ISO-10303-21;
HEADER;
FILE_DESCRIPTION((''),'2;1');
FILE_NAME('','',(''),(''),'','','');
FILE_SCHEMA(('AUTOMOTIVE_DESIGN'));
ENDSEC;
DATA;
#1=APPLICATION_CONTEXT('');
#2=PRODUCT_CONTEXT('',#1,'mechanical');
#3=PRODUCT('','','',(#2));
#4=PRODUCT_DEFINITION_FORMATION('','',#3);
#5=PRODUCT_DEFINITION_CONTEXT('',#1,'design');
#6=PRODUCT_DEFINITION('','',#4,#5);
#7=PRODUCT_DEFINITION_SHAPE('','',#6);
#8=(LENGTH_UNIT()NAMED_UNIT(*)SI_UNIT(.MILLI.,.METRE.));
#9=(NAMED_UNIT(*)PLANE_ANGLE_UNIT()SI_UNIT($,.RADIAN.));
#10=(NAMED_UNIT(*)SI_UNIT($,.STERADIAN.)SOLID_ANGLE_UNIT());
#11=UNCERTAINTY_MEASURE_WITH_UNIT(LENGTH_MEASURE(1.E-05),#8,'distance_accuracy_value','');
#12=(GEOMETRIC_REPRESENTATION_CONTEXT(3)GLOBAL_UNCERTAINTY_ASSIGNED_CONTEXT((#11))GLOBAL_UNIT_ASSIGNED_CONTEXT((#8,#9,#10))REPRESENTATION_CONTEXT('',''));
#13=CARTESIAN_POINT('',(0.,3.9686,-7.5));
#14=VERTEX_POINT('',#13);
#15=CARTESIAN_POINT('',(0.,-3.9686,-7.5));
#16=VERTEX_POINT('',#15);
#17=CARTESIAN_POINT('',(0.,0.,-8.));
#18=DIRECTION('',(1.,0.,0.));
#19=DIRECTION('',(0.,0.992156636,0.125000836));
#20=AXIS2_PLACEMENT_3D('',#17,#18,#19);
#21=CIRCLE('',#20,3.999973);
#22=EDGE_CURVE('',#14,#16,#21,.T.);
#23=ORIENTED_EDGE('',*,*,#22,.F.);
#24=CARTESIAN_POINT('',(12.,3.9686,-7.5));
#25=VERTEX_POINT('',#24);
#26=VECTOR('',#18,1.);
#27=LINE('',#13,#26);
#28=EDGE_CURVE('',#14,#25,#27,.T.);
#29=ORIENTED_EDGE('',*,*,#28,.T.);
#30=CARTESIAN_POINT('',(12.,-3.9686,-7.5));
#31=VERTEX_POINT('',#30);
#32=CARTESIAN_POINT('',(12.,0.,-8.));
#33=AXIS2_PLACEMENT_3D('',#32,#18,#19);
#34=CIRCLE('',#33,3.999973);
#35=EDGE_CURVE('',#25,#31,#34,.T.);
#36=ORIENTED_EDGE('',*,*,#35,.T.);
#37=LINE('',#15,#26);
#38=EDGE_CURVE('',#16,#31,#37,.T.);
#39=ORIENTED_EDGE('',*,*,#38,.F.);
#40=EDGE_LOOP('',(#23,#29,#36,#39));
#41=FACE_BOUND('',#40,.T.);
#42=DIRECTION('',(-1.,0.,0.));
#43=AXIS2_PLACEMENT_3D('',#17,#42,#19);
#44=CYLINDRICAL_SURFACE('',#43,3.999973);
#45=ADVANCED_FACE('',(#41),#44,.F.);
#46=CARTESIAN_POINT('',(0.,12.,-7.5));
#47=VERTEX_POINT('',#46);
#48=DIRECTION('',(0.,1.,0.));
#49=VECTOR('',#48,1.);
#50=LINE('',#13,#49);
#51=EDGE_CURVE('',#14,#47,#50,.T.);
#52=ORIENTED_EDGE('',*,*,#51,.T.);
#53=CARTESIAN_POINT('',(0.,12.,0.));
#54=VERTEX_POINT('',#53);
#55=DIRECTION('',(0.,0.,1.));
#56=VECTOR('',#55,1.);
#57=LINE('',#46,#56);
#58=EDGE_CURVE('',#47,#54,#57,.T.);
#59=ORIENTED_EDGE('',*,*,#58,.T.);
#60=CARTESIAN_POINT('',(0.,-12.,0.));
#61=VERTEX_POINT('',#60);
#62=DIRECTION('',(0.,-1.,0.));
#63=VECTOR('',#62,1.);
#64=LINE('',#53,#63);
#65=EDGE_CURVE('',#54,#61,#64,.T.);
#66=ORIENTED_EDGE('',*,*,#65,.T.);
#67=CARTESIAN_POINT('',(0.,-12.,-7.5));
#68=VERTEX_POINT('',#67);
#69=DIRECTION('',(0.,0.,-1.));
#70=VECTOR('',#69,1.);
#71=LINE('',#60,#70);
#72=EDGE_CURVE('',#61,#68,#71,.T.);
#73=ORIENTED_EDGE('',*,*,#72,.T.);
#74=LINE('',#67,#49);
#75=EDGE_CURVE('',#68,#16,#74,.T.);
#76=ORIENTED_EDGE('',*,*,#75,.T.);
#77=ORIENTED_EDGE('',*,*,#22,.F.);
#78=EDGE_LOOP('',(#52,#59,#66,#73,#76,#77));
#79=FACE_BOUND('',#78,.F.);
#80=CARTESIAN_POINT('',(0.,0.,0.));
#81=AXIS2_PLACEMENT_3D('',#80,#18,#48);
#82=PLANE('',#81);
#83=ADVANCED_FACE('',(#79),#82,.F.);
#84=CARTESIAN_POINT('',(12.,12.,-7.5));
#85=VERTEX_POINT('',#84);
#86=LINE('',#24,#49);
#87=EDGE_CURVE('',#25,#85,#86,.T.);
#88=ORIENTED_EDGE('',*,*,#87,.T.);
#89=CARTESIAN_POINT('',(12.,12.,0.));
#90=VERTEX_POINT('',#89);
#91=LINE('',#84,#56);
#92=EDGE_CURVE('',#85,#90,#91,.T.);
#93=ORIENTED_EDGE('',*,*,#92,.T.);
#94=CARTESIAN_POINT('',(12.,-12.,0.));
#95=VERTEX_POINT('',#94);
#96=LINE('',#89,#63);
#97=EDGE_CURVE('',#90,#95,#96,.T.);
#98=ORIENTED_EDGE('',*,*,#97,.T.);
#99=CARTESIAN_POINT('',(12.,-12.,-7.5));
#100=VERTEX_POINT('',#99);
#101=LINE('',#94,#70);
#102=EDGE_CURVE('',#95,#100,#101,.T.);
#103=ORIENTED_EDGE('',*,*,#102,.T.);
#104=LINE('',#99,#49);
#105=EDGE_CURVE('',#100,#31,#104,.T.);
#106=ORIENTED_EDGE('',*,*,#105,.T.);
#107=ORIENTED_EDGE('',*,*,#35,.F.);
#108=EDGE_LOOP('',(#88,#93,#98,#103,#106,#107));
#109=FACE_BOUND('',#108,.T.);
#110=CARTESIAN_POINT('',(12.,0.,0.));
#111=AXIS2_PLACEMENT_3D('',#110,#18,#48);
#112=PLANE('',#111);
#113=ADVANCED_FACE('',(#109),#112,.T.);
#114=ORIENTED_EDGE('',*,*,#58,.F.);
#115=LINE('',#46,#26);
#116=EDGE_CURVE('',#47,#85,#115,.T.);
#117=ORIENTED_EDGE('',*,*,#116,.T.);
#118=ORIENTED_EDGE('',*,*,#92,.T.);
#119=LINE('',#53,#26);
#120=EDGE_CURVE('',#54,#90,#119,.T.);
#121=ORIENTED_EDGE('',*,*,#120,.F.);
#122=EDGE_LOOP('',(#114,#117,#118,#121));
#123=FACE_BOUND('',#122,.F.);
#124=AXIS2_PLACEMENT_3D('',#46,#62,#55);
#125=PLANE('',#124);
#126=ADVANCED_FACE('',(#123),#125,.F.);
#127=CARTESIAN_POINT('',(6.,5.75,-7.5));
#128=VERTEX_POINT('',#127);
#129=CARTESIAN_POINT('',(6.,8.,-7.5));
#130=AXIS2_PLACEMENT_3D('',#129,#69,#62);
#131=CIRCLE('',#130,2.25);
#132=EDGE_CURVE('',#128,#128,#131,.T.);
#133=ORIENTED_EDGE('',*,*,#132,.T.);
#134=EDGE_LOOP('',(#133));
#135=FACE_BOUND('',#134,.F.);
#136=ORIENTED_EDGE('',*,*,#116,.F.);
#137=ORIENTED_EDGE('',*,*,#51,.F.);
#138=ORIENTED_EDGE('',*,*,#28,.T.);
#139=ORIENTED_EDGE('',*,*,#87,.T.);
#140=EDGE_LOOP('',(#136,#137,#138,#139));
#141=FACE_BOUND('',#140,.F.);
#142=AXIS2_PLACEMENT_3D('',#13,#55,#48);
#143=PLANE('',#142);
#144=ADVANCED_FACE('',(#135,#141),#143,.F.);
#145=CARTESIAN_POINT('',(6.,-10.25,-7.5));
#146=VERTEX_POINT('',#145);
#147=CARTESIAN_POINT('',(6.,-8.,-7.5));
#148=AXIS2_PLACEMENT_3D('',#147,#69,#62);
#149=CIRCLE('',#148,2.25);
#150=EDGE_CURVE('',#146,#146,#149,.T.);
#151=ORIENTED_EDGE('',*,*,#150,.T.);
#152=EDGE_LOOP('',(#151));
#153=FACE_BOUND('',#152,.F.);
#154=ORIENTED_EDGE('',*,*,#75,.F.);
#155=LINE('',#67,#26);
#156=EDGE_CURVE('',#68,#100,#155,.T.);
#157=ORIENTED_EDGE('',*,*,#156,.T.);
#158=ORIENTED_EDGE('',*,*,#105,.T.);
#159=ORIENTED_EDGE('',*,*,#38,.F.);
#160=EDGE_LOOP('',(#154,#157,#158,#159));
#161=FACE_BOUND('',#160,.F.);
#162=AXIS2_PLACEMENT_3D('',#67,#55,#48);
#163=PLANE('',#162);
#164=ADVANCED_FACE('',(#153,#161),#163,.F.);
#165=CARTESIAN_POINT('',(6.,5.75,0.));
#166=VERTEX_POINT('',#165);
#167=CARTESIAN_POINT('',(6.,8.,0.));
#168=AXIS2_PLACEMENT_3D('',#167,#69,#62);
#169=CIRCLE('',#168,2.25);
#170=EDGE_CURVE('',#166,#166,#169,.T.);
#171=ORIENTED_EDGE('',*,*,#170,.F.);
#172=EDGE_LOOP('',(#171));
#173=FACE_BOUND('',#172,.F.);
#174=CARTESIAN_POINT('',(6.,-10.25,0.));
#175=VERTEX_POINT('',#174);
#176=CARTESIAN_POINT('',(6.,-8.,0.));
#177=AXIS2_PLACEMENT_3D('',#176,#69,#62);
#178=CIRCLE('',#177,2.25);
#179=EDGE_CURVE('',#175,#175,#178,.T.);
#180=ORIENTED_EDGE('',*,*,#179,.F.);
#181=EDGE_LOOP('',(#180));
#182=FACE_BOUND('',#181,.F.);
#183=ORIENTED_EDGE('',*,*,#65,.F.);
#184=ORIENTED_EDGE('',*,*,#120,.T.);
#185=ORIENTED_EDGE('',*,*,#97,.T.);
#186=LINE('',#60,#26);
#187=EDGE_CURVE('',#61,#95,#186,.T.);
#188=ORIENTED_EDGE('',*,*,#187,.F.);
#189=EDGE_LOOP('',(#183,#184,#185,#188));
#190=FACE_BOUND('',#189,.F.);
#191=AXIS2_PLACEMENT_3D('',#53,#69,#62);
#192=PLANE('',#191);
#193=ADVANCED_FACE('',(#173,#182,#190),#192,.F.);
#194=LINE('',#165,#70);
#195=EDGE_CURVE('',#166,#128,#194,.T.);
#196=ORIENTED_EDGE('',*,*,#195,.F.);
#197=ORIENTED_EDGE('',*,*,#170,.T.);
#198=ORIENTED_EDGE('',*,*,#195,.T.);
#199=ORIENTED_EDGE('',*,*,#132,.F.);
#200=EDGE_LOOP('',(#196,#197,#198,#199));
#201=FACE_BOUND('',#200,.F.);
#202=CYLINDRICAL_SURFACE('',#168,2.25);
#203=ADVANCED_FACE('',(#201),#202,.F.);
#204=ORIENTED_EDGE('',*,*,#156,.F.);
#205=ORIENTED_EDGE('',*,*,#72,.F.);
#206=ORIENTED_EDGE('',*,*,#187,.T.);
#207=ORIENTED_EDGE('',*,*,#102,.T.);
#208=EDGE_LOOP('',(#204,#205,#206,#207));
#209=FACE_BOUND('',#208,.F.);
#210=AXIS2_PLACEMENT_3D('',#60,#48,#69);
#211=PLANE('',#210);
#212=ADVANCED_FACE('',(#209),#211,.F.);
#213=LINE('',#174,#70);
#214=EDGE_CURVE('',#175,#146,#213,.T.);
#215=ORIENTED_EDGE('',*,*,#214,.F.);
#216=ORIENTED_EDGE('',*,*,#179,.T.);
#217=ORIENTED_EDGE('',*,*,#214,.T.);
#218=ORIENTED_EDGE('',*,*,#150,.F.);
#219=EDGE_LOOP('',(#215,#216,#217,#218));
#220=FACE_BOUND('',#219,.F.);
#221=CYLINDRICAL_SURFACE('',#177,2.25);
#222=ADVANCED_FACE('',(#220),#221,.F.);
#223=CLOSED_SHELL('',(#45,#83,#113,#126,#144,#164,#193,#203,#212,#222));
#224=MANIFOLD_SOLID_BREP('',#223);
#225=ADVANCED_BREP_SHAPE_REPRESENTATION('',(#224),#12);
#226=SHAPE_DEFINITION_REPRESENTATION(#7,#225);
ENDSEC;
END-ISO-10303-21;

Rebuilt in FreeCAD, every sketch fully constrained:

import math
import FreeCAD as App
import Part
import Sketcher
from FreeCAD import Vector

doc = App.newDocument("Part")
body = doc.addObject("PartDesign::Body", "Body")

# Sketch on YZ plane
sketch1 = body.newObject("Sketcher::SketchObject", "Sketch")
sketch1.AttachmentSupport = (doc.getObject("YZ_Plane"), [""])
sketch1.MapMode = "FlatFace"
sketch1.addGeometry(Part.ArcOfCircle(Part.Circle(Vector(0, -8, 0), Vector(0, 0, 1), 3.999973), math.radians(7.180804), math.radians(172.819196)), False)
sketch1.addGeometry(Part.LineSegment(Vector(3.9686, -7.5, 0), Vector(12, -7.5, 0)), False)
sketch1.addGeometry(Part.LineSegment(Vector(12, -7.5, 0), Vector(12, 0, 0)), False)
sketch1.addGeometry(Part.LineSegment(Vector(12, 0, 0), Vector(-12, 0, 0)), False)
sketch1.addGeometry(Part.LineSegment(Vector(-12, 0, 0), Vector(-12, -7.5, 0)), False)
sketch1.addGeometry(Part.LineSegment(Vector(-12, -7.5, 0), Vector(-3.9686, -7.5, 0)), False)
sketch1.addConstraint(Sketcher.Constraint("Coincident", 0, 1, 1, 1))
sketch1.addConstraint(Sketcher.Constraint("Coincident", 1, 2, 2, 1))
sketch1.addConstraint(Sketcher.Constraint("Coincident", 2, 2, 3, 1))
sketch1.addConstraint(Sketcher.Constraint("Coincident", 3, 2, 4, 1))
sketch1.addConstraint(Sketcher.Constraint("Coincident", 4, 2, 5, 1))
sketch1.addConstraint(Sketcher.Constraint("Coincident", 5, 2, 0, 2))
sketch1.addConstraint(Sketcher.Constraint("Horizontal", 1))
sketch1.addConstraint(Sketcher.Constraint("Vertical", 2))
sketch1.addConstraint(Sketcher.Constraint("Horizontal", 3))
sketch1.addConstraint(Sketcher.Constraint("Vertical", 4))
sketch1.addConstraint(Sketcher.Constraint("Horizontal", 5))
sketch1.addConstraint(Sketcher.Constraint("Symmetric", 2, 2, 3, 2, -1, 1))
sketch1.addConstraint(Sketcher.Constraint("Symmetric", 0, 1, 5, 2, -2))
sketch1.addConstraint(Sketcher.Constraint("Radius", 0, 4.0))
sketch1.addConstraint(Sketcher.Constraint("DistanceX", 3, 2, 3, 1, 24.0))
sketch1.addConstraint(Sketcher.Constraint("DistanceY", 2, 1, 2, 2, 7.5))
sketch1.addConstraint(Sketcher.Constraint("DistanceY", 0, 3, -1, 1, 8.0))
pad1 = body.newObject("PartDesign::Pad", "Pad")
pad1.Profile = sketch1
pad1.Length = 12

# Sketch on XY plane
sketch2 = body.newObject("Sketcher::SketchObject", "Sketch001")
sketch2.AttachmentSupport = (doc.getObject("XY_Plane"), [""])
sketch2.MapMode = "FlatFace"
sketch2.addGeometry(Part.Circle(Vector(6, -8, 0), Vector(0, 0, 1), 2.25), False)
sketch2.addConstraint(Sketcher.Constraint("Diameter", 0, 4.5))
sketch2.addConstraint(Sketcher.Constraint("DistanceX", -1, 1, 0, 3, 6.0))
sketch2.addConstraint(Sketcher.Constraint("DistanceY", 0, 3, -1, 1, 8.0))
doc.recompute()
hole = body.newObject("PartDesign::Hole", "Hole")
hole.Profile = sketch2
hole.ThreadType = "None"
hole.Diameter = 4.5
hole.DepthType = "Dimension"
hole.Depth = 7.5
hole.DrillPoint = "Flat"

# Sketch on XY plane
sketch3 = body.newObject("Sketcher::SketchObject", "Sketch002")
sketch3.AttachmentSupport = (doc.getObject("XY_Plane"), [""])
sketch3.MapMode = "FlatFace"
sketch3.addGeometry(Part.Circle(Vector(6, 8, 0), Vector(0, 0, 1), 2.25), False)
sketch3.addConstraint(Sketcher.Constraint("Diameter", 0, 4.5))
sketch3.addConstraint(Sketcher.Constraint("DistanceX", -1, 1, 0, 3, 6.0))
sketch3.addConstraint(Sketcher.Constraint("DistanceY", -1, 1, 0, 3, 8.0))
doc.recompute()
hole2 = body.newObject("PartDesign::Hole", "Hole001")
hole2.Profile = sketch3
hole2.ThreadType = "None"
hole2.Diameter = 4.5
hole2.DepthType = "Dimension"
hole2.Depth = 7.5
hole2.DrillPoint = "Flat"

doc.recompute()
